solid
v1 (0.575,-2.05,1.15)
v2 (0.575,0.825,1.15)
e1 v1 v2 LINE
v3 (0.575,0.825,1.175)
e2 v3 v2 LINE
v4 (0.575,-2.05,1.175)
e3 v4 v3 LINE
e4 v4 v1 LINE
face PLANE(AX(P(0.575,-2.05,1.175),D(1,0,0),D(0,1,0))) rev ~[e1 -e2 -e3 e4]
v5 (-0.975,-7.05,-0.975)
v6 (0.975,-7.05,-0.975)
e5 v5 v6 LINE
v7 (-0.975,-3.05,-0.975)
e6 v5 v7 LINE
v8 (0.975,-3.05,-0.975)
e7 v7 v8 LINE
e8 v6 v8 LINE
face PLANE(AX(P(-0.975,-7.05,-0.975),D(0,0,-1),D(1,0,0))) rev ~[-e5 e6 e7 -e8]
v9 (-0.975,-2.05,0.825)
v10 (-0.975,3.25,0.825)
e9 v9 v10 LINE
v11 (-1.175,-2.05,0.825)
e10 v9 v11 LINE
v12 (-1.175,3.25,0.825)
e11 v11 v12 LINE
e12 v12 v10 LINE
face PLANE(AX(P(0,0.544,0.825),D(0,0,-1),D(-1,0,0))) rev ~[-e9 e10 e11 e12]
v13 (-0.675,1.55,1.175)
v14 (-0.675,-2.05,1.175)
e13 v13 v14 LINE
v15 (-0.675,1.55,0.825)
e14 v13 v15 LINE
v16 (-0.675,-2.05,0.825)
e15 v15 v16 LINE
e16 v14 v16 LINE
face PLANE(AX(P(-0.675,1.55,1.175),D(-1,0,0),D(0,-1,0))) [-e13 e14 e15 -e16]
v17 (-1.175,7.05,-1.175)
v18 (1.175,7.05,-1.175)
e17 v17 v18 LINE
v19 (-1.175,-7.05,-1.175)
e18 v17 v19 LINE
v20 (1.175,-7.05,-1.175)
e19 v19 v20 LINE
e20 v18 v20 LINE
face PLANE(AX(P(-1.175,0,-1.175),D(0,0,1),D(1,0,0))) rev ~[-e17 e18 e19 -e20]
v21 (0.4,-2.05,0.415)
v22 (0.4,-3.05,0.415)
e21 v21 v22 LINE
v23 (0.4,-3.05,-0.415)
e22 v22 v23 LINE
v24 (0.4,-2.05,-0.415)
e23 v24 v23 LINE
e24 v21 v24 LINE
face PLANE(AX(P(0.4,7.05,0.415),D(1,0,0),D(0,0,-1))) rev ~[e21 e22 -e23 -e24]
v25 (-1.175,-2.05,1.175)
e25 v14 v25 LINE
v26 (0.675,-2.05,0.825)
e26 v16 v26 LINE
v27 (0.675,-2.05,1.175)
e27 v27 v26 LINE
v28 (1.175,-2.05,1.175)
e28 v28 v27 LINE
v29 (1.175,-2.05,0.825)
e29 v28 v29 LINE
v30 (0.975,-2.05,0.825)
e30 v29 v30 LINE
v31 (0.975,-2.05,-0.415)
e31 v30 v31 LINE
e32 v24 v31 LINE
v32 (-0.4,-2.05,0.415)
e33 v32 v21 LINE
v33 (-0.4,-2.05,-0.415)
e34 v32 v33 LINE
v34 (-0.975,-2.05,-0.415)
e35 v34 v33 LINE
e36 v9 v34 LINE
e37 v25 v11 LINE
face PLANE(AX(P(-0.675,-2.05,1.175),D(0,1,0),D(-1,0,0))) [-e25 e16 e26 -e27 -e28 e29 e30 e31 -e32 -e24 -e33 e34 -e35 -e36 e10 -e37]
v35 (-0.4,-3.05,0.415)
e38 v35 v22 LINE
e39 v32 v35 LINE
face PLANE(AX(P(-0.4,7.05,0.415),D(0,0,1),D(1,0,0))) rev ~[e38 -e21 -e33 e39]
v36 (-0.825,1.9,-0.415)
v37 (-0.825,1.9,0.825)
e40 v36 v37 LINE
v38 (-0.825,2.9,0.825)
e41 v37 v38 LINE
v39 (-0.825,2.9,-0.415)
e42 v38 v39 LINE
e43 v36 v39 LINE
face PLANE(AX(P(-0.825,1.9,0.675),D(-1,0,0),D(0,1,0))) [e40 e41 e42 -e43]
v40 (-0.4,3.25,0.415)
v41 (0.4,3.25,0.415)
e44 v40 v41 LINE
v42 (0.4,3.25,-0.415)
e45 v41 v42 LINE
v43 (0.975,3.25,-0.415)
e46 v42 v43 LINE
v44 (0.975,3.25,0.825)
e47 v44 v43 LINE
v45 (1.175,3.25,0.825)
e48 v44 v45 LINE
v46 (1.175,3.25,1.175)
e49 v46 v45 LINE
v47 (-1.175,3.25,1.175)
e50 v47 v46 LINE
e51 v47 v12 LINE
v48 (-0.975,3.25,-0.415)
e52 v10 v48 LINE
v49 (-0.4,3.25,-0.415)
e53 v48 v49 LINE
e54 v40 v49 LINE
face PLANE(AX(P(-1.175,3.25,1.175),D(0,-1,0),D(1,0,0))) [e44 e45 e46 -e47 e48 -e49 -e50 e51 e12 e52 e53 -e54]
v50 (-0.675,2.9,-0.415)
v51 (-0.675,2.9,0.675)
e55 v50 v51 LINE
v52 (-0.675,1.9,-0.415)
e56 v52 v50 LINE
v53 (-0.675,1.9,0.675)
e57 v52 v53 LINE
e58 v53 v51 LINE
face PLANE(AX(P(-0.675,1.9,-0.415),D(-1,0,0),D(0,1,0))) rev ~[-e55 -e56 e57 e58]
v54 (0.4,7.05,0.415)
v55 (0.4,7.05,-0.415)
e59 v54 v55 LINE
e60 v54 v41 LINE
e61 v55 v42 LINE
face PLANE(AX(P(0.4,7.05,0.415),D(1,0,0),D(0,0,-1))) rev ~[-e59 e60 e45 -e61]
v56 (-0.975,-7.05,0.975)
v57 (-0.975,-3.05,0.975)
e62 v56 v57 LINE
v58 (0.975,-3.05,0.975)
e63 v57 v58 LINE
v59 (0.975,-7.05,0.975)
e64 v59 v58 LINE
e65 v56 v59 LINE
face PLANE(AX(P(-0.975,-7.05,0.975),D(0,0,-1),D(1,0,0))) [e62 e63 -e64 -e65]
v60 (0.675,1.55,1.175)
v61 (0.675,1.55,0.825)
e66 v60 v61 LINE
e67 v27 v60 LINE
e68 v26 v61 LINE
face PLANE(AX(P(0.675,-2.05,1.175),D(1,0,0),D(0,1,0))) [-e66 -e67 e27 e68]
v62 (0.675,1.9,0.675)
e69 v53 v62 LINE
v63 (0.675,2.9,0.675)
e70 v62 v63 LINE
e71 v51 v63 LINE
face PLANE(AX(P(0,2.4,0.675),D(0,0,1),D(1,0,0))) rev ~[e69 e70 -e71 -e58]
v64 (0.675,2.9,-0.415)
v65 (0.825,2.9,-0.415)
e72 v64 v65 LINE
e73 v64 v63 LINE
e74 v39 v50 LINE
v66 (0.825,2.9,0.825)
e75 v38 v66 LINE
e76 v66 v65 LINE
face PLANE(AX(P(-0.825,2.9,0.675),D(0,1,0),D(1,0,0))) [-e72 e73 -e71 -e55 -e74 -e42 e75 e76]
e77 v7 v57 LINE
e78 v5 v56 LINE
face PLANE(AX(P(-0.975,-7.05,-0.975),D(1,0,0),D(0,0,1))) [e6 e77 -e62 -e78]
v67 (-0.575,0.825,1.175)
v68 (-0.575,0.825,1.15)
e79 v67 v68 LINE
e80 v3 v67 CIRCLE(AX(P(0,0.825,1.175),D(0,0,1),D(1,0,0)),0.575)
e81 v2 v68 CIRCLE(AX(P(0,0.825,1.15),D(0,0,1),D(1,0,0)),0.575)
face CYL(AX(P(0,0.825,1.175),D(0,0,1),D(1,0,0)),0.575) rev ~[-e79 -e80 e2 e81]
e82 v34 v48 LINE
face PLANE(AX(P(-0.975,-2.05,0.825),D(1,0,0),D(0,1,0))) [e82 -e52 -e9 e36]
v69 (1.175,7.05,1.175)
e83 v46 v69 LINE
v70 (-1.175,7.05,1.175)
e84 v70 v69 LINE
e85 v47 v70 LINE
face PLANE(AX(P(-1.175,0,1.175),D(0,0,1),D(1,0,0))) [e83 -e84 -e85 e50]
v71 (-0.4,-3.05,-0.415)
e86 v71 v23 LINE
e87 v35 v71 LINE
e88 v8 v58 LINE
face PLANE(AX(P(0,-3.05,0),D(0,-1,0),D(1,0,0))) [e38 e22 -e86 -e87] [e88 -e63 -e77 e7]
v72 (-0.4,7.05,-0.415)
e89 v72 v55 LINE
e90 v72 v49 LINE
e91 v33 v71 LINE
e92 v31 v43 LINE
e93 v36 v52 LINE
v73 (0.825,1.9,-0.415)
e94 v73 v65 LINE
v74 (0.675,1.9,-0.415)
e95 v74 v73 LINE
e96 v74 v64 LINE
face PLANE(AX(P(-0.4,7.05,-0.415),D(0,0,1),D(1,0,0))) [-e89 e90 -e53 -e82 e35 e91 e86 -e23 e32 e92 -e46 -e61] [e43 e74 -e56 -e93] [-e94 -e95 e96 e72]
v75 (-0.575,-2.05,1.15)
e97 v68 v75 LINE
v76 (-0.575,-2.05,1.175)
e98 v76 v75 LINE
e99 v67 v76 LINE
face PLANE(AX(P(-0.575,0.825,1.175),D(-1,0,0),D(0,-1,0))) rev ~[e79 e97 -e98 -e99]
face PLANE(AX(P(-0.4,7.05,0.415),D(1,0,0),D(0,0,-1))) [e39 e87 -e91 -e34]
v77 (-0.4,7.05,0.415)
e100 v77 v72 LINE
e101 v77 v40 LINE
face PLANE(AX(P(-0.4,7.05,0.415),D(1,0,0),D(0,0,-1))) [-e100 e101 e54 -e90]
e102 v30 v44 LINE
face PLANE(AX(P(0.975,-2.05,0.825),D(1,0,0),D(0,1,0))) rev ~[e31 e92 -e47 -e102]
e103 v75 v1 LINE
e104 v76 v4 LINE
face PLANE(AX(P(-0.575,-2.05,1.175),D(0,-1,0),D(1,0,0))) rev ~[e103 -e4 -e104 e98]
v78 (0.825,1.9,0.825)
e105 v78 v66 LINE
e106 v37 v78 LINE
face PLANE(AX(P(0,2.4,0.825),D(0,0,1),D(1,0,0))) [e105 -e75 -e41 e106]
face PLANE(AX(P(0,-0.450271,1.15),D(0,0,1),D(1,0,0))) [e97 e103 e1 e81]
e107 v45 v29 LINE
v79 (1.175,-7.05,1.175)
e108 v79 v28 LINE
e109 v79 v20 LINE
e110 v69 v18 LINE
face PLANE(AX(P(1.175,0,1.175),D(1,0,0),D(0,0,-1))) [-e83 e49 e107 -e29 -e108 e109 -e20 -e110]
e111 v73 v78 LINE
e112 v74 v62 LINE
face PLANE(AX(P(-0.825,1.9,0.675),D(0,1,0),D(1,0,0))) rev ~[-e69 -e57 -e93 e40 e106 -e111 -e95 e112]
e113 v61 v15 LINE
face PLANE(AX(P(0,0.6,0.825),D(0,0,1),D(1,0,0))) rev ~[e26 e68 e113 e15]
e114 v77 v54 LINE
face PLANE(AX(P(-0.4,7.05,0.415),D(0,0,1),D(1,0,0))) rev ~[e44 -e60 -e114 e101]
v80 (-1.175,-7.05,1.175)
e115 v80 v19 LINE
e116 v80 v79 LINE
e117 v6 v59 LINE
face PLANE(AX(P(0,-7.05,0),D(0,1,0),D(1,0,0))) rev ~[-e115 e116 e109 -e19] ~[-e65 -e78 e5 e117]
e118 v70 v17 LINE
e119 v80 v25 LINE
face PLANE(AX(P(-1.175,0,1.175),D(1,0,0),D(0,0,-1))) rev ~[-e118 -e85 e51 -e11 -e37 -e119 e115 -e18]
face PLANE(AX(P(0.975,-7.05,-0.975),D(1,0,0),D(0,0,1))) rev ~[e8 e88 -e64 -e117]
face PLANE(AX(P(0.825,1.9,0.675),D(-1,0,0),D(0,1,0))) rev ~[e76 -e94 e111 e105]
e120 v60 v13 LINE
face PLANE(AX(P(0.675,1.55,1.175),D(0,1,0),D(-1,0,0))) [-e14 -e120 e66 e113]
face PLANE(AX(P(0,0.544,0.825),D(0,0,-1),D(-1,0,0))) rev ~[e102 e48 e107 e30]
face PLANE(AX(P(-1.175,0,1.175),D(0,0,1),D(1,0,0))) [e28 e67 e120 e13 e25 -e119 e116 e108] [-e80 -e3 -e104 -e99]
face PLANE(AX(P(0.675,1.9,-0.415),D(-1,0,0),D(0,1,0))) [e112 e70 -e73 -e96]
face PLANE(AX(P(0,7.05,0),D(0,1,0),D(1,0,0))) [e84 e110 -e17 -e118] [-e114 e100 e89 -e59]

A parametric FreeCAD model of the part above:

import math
import FreeCAD as App
import Part
import Sketcher

V = App.Vector
Q = App.Units.Quantity

doc = App.newDocument("Part")
body = doc.addObject("PartDesign::Body", "Body")

sketch1 = doc.addObject("Sketcher::SketchObject", "Sketch")
body.addObject(sketch1)
sketch1.AttachmentSupport = (doc.XZ_Plane, [""])
sketch1.MapMode = "FlatFace"
sketch1.addGeometry(Part.LineSegment(V(-1.2, -1.2, 0), V(-1.2, 1.2, 0)), False)
sketch1.addGeometry(Part.LineSegment(V(-1.2, 1.2, 0), V(1.2, 1.2, 0)), False)
sketch1.addGeometry(Part.LineSegment(V(1.2, 1.2, 0), V(1.2, -1.2, 0)), False)
sketch1.addGeometry(Part.LineSegment(V(1.2, -1.2, 0), V(-1.2, -1.2, 0)), False)
sketch1.addConstraint(Sketcher.Constraint("Coincident", 0, 2, 1, 1))
sketch1.addConstraint(Sketcher.Constraint("Coincident", 1, 2, 2, 1))
sketch1.addConstraint(Sketcher.Constraint("Coincident", 2, 2, 3, 1))
sketch1.addConstraint(Sketcher.Constraint("Coincident", 3, 2, 0, 1))
sketch1.addConstraint(Sketcher.Constraint("Vertical", 0))
sketch1.addConstraint(Sketcher.Constraint("Horizontal", 1))
sketch1.addConstraint(Sketcher.Constraint("Vertical", 2))
sketch1.addConstraint(Sketcher.Constraint("Horizontal", 3))
sketch1.addConstraint(Sketcher.Constraint("Symmetric", 0, 2, 2, 2, -1, 1))
sketch1.addConstraint(Sketcher.Constraint("Equal", 3, 0))
sketch1.addConstraint(Sketcher.Constraint("DistanceX", 1, 1, 1, 2, Q("2.35 mm")))
pad1 = doc.addObject("PartDesign::Pad", "Pad")
body.addObject(pad1)
pad1.Profile = sketch1
pad1.Length = 14.1
pad1.Midplane = True

sketch2 = doc.addObject("Sketcher::SketchObject", "Sketch001")
body.addObject(sketch2)
sketch2.AttachmentSupport = (doc.XZ_Plane, [""])
sketch2.MapMode = "FlatFace"
sketch2.AttachmentOffset = App.Placement(V(0, 0, -7.05), App.Rotation())
sketch2.addGeometry(Part.LineSegment(V(-0.4, -0.4, 0), V(-0.4, 0.4, 0)), False)
sketch2.addGeometry(Part.LineSegment(V(-0.4, 0.4, 0), V(0.4, 0.4, 0)), False)
sketch2.addGeometry(Part.LineSegment(V(0.4, 0.4, 0), V(0.4, -0.4, 0)), False)
sketch2.addGeometry(Part.LineSegment(V(0.4, -0.4, 0), V(-0.4, -0.4, 0)), False)
sketch2.addConstraint(Sketcher.Constraint("Coincident", 0, 2, 1, 1))
sketch2.addConstraint(Sketcher.Constraint("Coincident", 1, 2, 2, 1))
sketch2.addConstraint(Sketcher.Constraint("Coincident", 2, 2, 3, 1))
sketch2.addConstraint(Sketcher.Constraint("Coincident", 3, 2, 0, 1))
sketch2.addConstraint(Sketcher.Constraint("Vertical", 0))
sketch2.addConstraint(Sketcher.Constraint("Horizontal", 1))
sketch2.addConstraint(Sketcher.Constraint("Vertical", 2))
sketch2.addConstraint(Sketcher.Constraint("Horizontal", 3))
sketch2.addConstraint(Sketcher.Constraint("Symmetric", 0, 2, 2, 2, -1, 1))
sketch2.addConstraint(Sketcher.Constraint("DistanceX", 1, 1, 1, 2, Q("0.8 mm")))
sketch2.addConstraint(Sketcher.Constraint("DistanceY", 0, 1, 0, 2, Q("0.83 mm")))
pocket1 = doc.addObject("PartDesign::Pocket", "Pocket")
body.addObject(pocket1)
pocket1.Profile = sketch2
pocket1.Type = "UpToFirst"
pocket1.Reversed = True

sketch3 = doc.addObject("Sketcher::SketchObject", "Sketch002")
body.addObject(sketch3)
sketch3.AttachmentSupport = (doc.XY_Plane, [""])
sketch3.MapMode = "FlatFace"
sketch3.AttachmentOffset = App.Placement(V(0, 0, 1.175), App.Rotation())
sketch3.addGeometry(Part.LineSegment(V(1.2, 3.2, 0), V(-1.2, 3.2, 0)), False)
sketch3.addGeometry(Part.LineSegment(V(-1.2, 3.2, 0), V(-1.2, -2, 0)), False)
sketch3.addGeometry(Part.LineSegment(V(-1.2, -2, 0), V(-0.7, -2, 0)), False)
sketch3.addGeometry(Part.LineSegment(V(-0.7, -2, 0), V(-0.7, 1.6, 0)), False)
sketch3.addGeometry(Part.LineSegment(V(-0.7, 1.6, 0), V(0.7, 1.6, 0)), False)
sketch3.addGeometry(Part.LineSegment(V(0.7, 1.6, 0), V(0.7, -2, 0)), False)
sketch3.addGeometry(Part.LineSegment(V(0.7, -2, 0), V(1.2, -2, 0)), False)
sketch3.addGeometry(Part.LineSegment(V(1.2, -2, 0), V(1.2, 3.2, 0)), False)
sketch3.addConstraint(Sketcher.Constraint("Coincident", 0, 2, 1, 1))
sketch3.addConstraint(Sketcher.Constraint("Coincident", 1, 2, 2, 1))
sketch3.addConstraint(Sketcher.Constraint("Coincident", 2, 2, 3, 1))
sketch3.addConstraint(Sketcher.Constraint("Coincident", 3, 2, 4, 1))
sketch3.addConstraint(Sketcher.Constraint("Coincident", 4, 2, 5, 1))
sketch3.addConstraint(Sketcher.Constraint("Coincident", 5, 2, 6, 1))
sketch3.addConstraint(Sketcher.Constraint("Coincident", 6, 2, 7, 1))
sketch3.addConstraint(Sketcher.Constraint("Coincident", 7, 2, 0, 1))
sketch3.addConstraint(Sketcher.Constraint("Horizontal", 0))
sketch3.addConstraint(Sketcher.Constraint("Vertical", 1))
sketch3.addConstraint(Sketcher.Constraint("Horizontal", 2))
sketch3.addConstraint(Sketcher.Constraint("Vertical", 3))
sketch3.addConstraint(Sketcher.Constraint("Horizontal", 4))
sketch3.addConstraint(Sketcher.Constraint("Vertical", 5))
sketch3.addConstraint(Sketcher.Constraint("Horizontal", 6))
sketch3.addConstraint(Sketcher.Constraint("Vertical", 7))
sketch3.addConstraint(Sketcher.Constraint("Symmetric", 2, 2, 5, 2, -2))
sketch3.addConstraint(Sketcher.Constraint("Equal", 2, 6))
sketch3.addConstraint(Sketcher.Constraint("DistanceX", 2, 1, 2, 2, Q("0.5 mm")))
sketch3.addConstraint(Sketcher.Constraint("DistanceY", 1, 2, 1, 1, Q("5.3 mm")))
sketch3.addConstraint(Sketcher.Constraint("DistanceY", 3, 1, 3, 2, Q("3.6 mm")))
sketch3.addConstraint(Sketcher.Constraint("DistanceX", 0, 2, 0, 1, Q("2.35 mm")))
sketch3.addConstraint(Sketcher.Constraint("DistanceY", -1, 1, 0, 2, Q("3.25 mm")))
pocket2 = doc.addObject("PartDesign::Pocket", "Pocket001")
body.addObject(pocket2)
pocket2.Profile = sketch3
pocket2.Length = 0.35

sketch4 = doc.addObject("Sketcher::SketchObject", "Sketch003")
body.addObject(sketch4)
sketch4.AttachmentSupport = (doc.XY_Plane, [""])
sketch4.MapMode = "FlatFace"
sketch4.AttachmentOffset = App.Placement(V(0, 0, 0.825), App.Rotation())
sketch4.addGeometry(Part.LineSegment(V(-1, 3.2, 0), V(-1, -2, 0)), False)
sketch4.addGeometry(Part.LineSegment(V(-1, -2, 0), V(1, -2, 0)), False)
sketch4.addGeometry(Part.LineSegment(V(1, -2, 0), V(1, 3.2, 0)), False)
sketch4.addGeometry(Part.LineSegment(V(1, 3.2, 0), V(-1, 3.2, 0)), False)
sketch4.addConstraint(Sketcher.Constraint("Coincident", 0, 2, 1, 1))
sketch4.addConstraint(Sketcher.Constraint("Coincident", 1, 2, 2, 1))
sketch4.addConstraint(Sketcher.Constraint("Coincident", 2, 2, 3, 1))
sketch4.addConstraint(Sketcher.Constraint("Coincident", 3, 2, 0, 1))
sketch4.addConstraint(Sketcher.Constraint("Vertical", 0))
sketch4.addConstraint(Sketcher.Constraint("Horizontal", 1))
sketch4.addConstraint(Sketcher.Constraint("Vertical", 2))
sketch4.addConstraint(Sketcher.Constraint("Horizontal", 3))
sketch4.addConstraint(Sketcher.Constraint("DistanceY", 0, 2, 0, 1, Q("5.3 mm")))
sketch4.addConstraint(Sketcher.Constraint("DistanceX", 1, 1, 1, 2, Q("1.95 mm")))
sketch4.addConstraint(Sketcher.Constraint("DistanceY", 0, 2, -1, 1, Q("2.05 mm")))
sketch4.addConstraint(Sketcher.Constraint("DistanceX", 0, 2, -1, 1, Q("0.975 mm")))
pocket3 = doc.addObject("PartDesign::Pocket", "Pocket002")
body.addObject(pocket3)
pocket3.Profile = sketch4
pocket3.Length = 1.24

sketch5 = doc.addObject("Sketcher::SketchObject", "Sketch004")
body.addObject(sketch5)
sketch5.AttachmentSupport = (doc.XY_Plane, [""])
sketch5.MapMode = "FlatFace"
sketch5.AttachmentOffset = App.Placement(V(0, 0, 1.175), App.Rotation())
sketch5.addGeometry(Part.LineSegment(V(-0.6, 0.8, 0), V(-0.6, -2, 0)), False)
sketch5.addGeometry(Part.LineSegment(V(-0.6, -2, 0), V(0.6, -2, 0)), False)
sketch5.addGeometry(Part.LineSegment(V(0.6, -2, 0), V(0.6, 0.8, 0)), False)
sketch5.addGeometry(Part.ArcOfCircle(Part.Circle(V(0, 0.8, 0), V(0, 0, 1), 0.6), math.radians(0), math.radians(180)), False)
sketch5.addConstraint(Sketcher.Constraint("Coincident", 0, 2, 1, 1))
sketch5.addConstraint(Sketcher.Constraint("Coincident", 1, 2, 2, 1))
sketch5.addConstraint(Sketcher.Constraint("Tangent", 2, 2, 3, 1))
sketch5.addConstraint(Sketcher.Constraint("Tangent", 3, 2, 0, 1))
sketch5.addConstraint(Sketcher.Constraint("Vertical", 0))
sketch5.addConstraint(Sketcher.Constraint("Horizontal", 1))
sketch5.addConstraint(Sketcher.Constraint("Vertical", 2))
sketch5.addConstraint(Sketcher.Constraint("PointOnObject", 3, 3, -2))
sketch5.addConstraint(Sketcher.Constraint("Radius", 3, Q("0.575 mm")))
sketch5.addConstraint(Sketcher.Constraint("DistanceY", 0, 2, 0, 1, Q("2.875 mm")))
sketch5.addConstraint(Sketcher.Constraint("DistanceY", 0, 2, -1, 1, Q("2.05 mm")))
pocket4 = doc.addObject("PartDesign::Pocket", "Pocket003")
body.addObject(pocket4)
pocket4.Profile = sketch5
pocket4.Length = 0.025

sketch6 = doc.addObject("Sketcher::SketchObject", "Sketch005")
body.addObject(sketch6)
sketch6.AttachmentSupport = (doc.XZ_Plane, [""])
sketch6.MapMode = "FlatFace"
sketch6.AttachmentOffset = App.Placement(V(0, 0, 7.05), App.Rotation())
sketch6.addGeometry(Part.LineSegment(V(-1, 1, 0), V(-1, -1, 0)), False)
sketch6.addGeometry(Part.LineSegment(V(-1, -1, 0), V(1, -1, 0)), False)
sketch6.addGeometry(Part.LineSegment(V(1, -1, 0), V(1, 1, 0)), False)
sketch6.addGeometry(Part.LineSegment(V(1, 1, 0), V(-1, 1, 0)), False)
sketch6.addConstraint(Sketcher.Constraint("Coincident", 0, 2, 1, 1))
sketch6.addConstraint(Sketcher.Constraint("Coincident", 1, 2, 2, 1))
sketch6.addConstraint(Sketcher.Constraint("Coincident", 2, 2, 3, 1))
sketch6.addConstraint(Sketcher.Constraint("Coincident", 3, 2, 0, 1))
sketch6.addConstraint(Sketcher.Constraint("Vertical", 0))
sketch6.addConstraint(Sketcher.Constraint("Horizontal", 1))
sketch6.addConstraint(Sketcher.Constraint("Vertical", 2))
sketch6.addConstraint(Sketcher.Constraint("Horizontal", 3))
sketch6.addConstraint(Sketcher.Constraint("Symmetric", 0, 2, 2, 2, -1, 1))
sketch6.addConstraint(Sketcher.Constraint("Equal", 3, 0))
sketch6.addConstraint(Sketcher.Constraint("DistanceX", 1, 1, 1, 2, Q("1.95 mm")))
pocket5 = doc.addObject("PartDesign::Pocket", "Pocket004")
body.addObject(pocket5)
pocket5.Profile = sketch6
pocket5.Length = 4

sketch7 = doc.addObject("Sketcher::SketchObject", "Sketch006")
body.addObject(sketch7)
sketch7.AttachmentSupport = (doc.XY_Plane, [""])
sketch7.MapMode = "FlatFace"
sketch7.AttachmentOffset = App.Placement(V(0, 0, -0.415), App.Rotation())
sketch7.addGeometry(Part.LineSegment(V(-0.82, 2.9, 0), V(-0.82, 1.9, 0)), False)
sketch7.addGeometry(Part.LineSegment(V(-0.82, 1.9, 0), V(-0.68, 1.9, 0)), False)
sketch7.addGeometry(Part.LineSegment(V(-0.68, 1.9, 0), V(-0.68, 2.9, 0)), False)
sketch7.addGeometry(Part.LineSegment(V(-0.68, 2.9, 0), V(-0.82, 2.9, 0)), False)
sketch7.addGeometry(Part.LineSegment(V(0.68, 2.9, 0), V(0.68, 1.9, 0)), False)
sketch7.addGeometry(Part.LineSegment(V(0.68, 1.9, 0), V(0.82, 1.9, 0)), False)
sketch7.addGeometry(Part.LineSegment(V(0.82, 1.9, 0), V(0.82, 2.9, 0)), False)
sketch7.addGeometry(Part.LineSegment(V(0.82, 2.9, 0), V(0.68, 2.9, 0)), False)
sketch7.addConstraint(Sketcher.Constraint("Coincident", 0, 2, 1, 1))
sketch7.addConstraint(Sketcher.Constraint("Coincident", 1, 2, 2, 1))
sketch7.addConstraint(Sketcher.Constraint("Coincident", 2, 2, 3, 1))
sketch7.addConstraint(Sketcher.Constraint("Coincident", 3, 2, 0, 1))
sketch7.addConstraint(Sketcher.Constraint("Coincident", 4, 2, 5, 1))
sketch7.addConstraint(Sketcher.Constraint("Coincident", 5, 2, 6, 1))
sketch7.addConstraint(Sketcher.Constraint("Coincident", 6, 2, 7, 1))
sketch7.addConstraint(Sketcher.Constraint("Coincident", 7, 2, 4, 1))
sketch7.addConstraint(Sketcher.Constraint("Vertical", 0))
sketch7.addConstraint(Sketcher.Constraint("Horizontal", 1))
sketch7.addConstraint(Sketcher.Constraint("Vertical", 2))
sketch7.addConstraint(Sketcher.Constraint("Horizontal", 3))
sketch7.addConstraint(Sketcher.Constraint("Vertical", 4))
sketch7.addConstraint(Sketcher.Constraint("Horizontal", 5))
sketch7.addConstraint(Sketcher.Constraint("Vertical", 6))
sketch7.addConstraint(Sketcher.Constraint("Horizontal", 7))
sketch7.addConstraint(Sketcher.Constraint("Symmetric", 1, 2, 4, 2, -2))
sketch7.addConstraint(Sketcher.Constraint("Symmetric", 3, 2, 6, 2, -2))
sketch7.addConstraint(Sketcher.Constraint("DistanceY", 0, 2, 0, 1, Q("1 mm")))
sketch7.addConstraint(Sketcher.Constraint("DistanceX", 1, 1, 1, 2, Q("0.15 mm")))
sketch7.addConstraint(Sketcher.Constraint("DistanceY", -1, 1, 0, 2, Q("1.9 mm")))
sketch7.addConstraint(Sketcher.Constraint("DistanceX", 0, 2, 4, 2, Q("1.5 mm")))
pad2 = doc.addObject("PartDesign::Pad", "Pad001")
body.addObject(pad2)
pad2.Profile = sketch7
pad2.Length = 1.09

sketch8 = doc.addObject("Sketcher::SketchObject", "Sketch007")
body.addObject(sketch8)
sketch8.AttachmentSupport = (doc.XY_Plane, [""])
sketch8.MapMode = "FlatFace"
sketch8.AttachmentOffset = App.Placement(V(0, 0, 0.675), App.Rotation())
sketch8.addGeometry(Part.LineSegment(V(-0.8, 2.9, 0), V(-0.8, 1.9, 0)), False)
sketch8.addGeometry(Part.LineSegment(V(-0.8, 1.9, 0), V(0.8, 1.9, 0)), False)
sketch8.addGeometry(Part.LineSegment(V(0.8, 1.9, 0), V(0.8, 2.9, 0)), False)
sketch8.addGeometry(Part.LineSegment(V(0.8, 2.9, 0), V(-0.8, 2.9, 0)), False)
sketch8.addConstraint(Sketcher.Constraint("Coincident", 0, 2, 1, 1))
sketch8.addConstraint(Sketcher.Constraint("Coincident", 1, 2, 2, 1))
sketch8.addConstraint(Sketcher.Constraint("Coincident", 2, 2, 3, 1))
sketch8.addConstraint(Sketcher.Constraint("Coincident", 3, 2, 0, 1))
sketch8.addConstraint(Sketcher.Constraint("Vertical", 0))
sketch8.addConstraint(Sketcher.Constraint("Horizontal", 1))
sketch8.addConstraint(Sketcher.Constraint("Vertical", 2))
sketch8.addConstraint(Sketcher.Constraint("Horizontal", 3))
sketch8.addConstraint(Sketcher.Constraint("DistanceY", 0, 2, 0, 1, Q("1 mm")))
sketch8.addConstraint(Sketcher.Constraint("DistanceX", 1, 1, 1, 2, Q("1.65 mm")))
sketch8.addConstraint(Sketcher.Constraint("DistanceY", -1, 1, 0, 2, Q("1.9 mm")))
sketch8.addConstraint(Sketcher.Constraint("DistanceX", 0, 2, -1, 1, Q("0.825 mm")))
pad3 = doc.addObject("PartDesign::Pad", "Pad002")
body.addObject(pad3)
pad3.Profile = sketch8
pad3.Length = 0.15

doc.recompute()
